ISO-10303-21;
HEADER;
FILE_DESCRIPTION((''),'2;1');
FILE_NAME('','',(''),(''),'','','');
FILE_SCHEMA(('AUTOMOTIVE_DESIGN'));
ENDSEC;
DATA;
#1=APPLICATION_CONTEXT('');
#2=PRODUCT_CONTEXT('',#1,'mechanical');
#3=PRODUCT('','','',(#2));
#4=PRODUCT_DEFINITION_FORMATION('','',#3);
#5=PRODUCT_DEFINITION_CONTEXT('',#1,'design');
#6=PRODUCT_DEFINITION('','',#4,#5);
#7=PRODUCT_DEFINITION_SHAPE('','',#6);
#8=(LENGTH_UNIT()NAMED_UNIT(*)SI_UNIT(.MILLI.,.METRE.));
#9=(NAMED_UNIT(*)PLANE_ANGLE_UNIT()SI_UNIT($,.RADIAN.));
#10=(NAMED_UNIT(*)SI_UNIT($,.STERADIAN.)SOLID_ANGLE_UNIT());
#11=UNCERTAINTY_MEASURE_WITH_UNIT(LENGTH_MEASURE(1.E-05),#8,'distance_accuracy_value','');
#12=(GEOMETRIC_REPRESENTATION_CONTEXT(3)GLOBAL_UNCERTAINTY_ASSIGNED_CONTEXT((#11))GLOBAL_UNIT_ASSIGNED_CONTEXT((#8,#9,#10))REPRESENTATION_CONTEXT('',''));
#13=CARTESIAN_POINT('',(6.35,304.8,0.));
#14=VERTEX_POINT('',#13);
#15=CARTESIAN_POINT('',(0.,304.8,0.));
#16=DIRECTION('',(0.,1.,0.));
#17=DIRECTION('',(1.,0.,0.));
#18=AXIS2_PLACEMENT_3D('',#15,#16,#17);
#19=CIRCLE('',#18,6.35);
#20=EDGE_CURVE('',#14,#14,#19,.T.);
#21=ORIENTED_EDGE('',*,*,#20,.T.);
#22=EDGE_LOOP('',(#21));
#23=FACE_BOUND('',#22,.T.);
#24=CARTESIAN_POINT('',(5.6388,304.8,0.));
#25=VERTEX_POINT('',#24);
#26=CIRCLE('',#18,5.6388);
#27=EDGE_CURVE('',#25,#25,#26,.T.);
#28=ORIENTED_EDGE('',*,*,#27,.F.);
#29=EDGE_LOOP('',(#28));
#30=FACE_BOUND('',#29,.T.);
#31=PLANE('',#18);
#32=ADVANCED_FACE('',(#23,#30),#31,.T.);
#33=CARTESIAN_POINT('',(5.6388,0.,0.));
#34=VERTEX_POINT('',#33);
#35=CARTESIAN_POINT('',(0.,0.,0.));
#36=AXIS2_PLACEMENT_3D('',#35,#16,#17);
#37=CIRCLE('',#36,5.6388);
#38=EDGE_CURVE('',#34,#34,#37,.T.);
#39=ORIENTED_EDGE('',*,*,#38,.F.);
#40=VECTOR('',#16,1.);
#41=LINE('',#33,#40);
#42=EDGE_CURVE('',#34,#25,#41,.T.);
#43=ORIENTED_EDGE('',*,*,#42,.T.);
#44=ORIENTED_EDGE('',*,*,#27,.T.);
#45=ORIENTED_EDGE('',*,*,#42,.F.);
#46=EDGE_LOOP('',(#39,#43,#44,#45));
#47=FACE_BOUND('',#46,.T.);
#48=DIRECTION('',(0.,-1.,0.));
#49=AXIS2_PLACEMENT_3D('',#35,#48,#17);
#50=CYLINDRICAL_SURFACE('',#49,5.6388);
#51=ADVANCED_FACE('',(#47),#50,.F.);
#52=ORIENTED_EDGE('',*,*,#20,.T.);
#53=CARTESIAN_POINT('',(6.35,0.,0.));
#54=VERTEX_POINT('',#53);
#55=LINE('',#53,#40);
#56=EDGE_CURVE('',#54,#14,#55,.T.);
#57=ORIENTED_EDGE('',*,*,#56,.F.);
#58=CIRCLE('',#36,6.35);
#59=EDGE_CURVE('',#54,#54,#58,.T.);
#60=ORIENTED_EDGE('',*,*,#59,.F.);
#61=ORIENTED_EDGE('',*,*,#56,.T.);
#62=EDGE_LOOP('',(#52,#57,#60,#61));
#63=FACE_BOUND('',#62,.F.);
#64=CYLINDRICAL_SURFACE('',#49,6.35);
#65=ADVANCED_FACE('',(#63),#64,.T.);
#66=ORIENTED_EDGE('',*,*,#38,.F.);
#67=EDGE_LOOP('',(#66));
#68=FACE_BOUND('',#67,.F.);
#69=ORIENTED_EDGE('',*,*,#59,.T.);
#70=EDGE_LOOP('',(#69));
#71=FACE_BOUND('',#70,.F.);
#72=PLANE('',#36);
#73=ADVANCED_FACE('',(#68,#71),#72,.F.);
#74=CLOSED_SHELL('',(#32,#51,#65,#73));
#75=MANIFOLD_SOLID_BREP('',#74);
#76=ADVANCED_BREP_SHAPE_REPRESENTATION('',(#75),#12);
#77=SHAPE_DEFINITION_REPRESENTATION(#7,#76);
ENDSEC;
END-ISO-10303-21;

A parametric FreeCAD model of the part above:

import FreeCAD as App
import Part
import Sketcher

V = App.Vector
Q = App.Units.Quantity

doc = App.newDocument("Part")
params = doc.addObject("Spreadsheet::Sheet", "Params")
for row, (alias, value) in enumerate([
    ("sketch1_diameter", "0.5 in"),
    ("sketch1_diameter2", "0.444 in"),
    ("pad1_length", "12 in"),
], start=1):
    params.set(f"A{row}", alias)
    params.set(f"B{row}", "=" + value)
    params.setAlias(f"B{row}", alias)

body = doc.addObject("PartDesign::Body", "Body")

# Sketch on XZ plane
sketch1 = doc.addObject("Sketcher::SketchObject", "Sketch")
body.addObject(sketch1)
sketch1.AttachmentSupport = (doc.XZ_Plane, [""])
sketch1.MapMode = "FlatFace"
sketch1.addGeometry([
    Part.Circle(V(0, 0, 0), V(0, 0, 1), 6),
    Part.Circle(V(0, 0, 0), V(0, 0, 1), 6),
], False)
sketch1.addConstraint([
    Sketcher.Constraint("Coincident", 0, 3, -1, 1),
    Sketcher.Constraint("Coincident", 1, 3, -1, 1),
    Sketcher.Constraint("Diameter", 0, Q("0.5 in")),
    Sketcher.Constraint("Diameter", 1, Q("0.444 in")),
])
sketch1.setExpression("Constraints[2]", "Params.sketch1_diameter")
sketch1.setExpression("Constraints[3]", "Params.sketch1_diameter2")
pad1 = doc.addObject("PartDesign::Pad", "Pad")
body.addObject(pad1)
pad1.Profile = sketch1
pad1.setExpression("Length", "Params.pad1_length")
pad1.Reversed = True

doc.recompute()
